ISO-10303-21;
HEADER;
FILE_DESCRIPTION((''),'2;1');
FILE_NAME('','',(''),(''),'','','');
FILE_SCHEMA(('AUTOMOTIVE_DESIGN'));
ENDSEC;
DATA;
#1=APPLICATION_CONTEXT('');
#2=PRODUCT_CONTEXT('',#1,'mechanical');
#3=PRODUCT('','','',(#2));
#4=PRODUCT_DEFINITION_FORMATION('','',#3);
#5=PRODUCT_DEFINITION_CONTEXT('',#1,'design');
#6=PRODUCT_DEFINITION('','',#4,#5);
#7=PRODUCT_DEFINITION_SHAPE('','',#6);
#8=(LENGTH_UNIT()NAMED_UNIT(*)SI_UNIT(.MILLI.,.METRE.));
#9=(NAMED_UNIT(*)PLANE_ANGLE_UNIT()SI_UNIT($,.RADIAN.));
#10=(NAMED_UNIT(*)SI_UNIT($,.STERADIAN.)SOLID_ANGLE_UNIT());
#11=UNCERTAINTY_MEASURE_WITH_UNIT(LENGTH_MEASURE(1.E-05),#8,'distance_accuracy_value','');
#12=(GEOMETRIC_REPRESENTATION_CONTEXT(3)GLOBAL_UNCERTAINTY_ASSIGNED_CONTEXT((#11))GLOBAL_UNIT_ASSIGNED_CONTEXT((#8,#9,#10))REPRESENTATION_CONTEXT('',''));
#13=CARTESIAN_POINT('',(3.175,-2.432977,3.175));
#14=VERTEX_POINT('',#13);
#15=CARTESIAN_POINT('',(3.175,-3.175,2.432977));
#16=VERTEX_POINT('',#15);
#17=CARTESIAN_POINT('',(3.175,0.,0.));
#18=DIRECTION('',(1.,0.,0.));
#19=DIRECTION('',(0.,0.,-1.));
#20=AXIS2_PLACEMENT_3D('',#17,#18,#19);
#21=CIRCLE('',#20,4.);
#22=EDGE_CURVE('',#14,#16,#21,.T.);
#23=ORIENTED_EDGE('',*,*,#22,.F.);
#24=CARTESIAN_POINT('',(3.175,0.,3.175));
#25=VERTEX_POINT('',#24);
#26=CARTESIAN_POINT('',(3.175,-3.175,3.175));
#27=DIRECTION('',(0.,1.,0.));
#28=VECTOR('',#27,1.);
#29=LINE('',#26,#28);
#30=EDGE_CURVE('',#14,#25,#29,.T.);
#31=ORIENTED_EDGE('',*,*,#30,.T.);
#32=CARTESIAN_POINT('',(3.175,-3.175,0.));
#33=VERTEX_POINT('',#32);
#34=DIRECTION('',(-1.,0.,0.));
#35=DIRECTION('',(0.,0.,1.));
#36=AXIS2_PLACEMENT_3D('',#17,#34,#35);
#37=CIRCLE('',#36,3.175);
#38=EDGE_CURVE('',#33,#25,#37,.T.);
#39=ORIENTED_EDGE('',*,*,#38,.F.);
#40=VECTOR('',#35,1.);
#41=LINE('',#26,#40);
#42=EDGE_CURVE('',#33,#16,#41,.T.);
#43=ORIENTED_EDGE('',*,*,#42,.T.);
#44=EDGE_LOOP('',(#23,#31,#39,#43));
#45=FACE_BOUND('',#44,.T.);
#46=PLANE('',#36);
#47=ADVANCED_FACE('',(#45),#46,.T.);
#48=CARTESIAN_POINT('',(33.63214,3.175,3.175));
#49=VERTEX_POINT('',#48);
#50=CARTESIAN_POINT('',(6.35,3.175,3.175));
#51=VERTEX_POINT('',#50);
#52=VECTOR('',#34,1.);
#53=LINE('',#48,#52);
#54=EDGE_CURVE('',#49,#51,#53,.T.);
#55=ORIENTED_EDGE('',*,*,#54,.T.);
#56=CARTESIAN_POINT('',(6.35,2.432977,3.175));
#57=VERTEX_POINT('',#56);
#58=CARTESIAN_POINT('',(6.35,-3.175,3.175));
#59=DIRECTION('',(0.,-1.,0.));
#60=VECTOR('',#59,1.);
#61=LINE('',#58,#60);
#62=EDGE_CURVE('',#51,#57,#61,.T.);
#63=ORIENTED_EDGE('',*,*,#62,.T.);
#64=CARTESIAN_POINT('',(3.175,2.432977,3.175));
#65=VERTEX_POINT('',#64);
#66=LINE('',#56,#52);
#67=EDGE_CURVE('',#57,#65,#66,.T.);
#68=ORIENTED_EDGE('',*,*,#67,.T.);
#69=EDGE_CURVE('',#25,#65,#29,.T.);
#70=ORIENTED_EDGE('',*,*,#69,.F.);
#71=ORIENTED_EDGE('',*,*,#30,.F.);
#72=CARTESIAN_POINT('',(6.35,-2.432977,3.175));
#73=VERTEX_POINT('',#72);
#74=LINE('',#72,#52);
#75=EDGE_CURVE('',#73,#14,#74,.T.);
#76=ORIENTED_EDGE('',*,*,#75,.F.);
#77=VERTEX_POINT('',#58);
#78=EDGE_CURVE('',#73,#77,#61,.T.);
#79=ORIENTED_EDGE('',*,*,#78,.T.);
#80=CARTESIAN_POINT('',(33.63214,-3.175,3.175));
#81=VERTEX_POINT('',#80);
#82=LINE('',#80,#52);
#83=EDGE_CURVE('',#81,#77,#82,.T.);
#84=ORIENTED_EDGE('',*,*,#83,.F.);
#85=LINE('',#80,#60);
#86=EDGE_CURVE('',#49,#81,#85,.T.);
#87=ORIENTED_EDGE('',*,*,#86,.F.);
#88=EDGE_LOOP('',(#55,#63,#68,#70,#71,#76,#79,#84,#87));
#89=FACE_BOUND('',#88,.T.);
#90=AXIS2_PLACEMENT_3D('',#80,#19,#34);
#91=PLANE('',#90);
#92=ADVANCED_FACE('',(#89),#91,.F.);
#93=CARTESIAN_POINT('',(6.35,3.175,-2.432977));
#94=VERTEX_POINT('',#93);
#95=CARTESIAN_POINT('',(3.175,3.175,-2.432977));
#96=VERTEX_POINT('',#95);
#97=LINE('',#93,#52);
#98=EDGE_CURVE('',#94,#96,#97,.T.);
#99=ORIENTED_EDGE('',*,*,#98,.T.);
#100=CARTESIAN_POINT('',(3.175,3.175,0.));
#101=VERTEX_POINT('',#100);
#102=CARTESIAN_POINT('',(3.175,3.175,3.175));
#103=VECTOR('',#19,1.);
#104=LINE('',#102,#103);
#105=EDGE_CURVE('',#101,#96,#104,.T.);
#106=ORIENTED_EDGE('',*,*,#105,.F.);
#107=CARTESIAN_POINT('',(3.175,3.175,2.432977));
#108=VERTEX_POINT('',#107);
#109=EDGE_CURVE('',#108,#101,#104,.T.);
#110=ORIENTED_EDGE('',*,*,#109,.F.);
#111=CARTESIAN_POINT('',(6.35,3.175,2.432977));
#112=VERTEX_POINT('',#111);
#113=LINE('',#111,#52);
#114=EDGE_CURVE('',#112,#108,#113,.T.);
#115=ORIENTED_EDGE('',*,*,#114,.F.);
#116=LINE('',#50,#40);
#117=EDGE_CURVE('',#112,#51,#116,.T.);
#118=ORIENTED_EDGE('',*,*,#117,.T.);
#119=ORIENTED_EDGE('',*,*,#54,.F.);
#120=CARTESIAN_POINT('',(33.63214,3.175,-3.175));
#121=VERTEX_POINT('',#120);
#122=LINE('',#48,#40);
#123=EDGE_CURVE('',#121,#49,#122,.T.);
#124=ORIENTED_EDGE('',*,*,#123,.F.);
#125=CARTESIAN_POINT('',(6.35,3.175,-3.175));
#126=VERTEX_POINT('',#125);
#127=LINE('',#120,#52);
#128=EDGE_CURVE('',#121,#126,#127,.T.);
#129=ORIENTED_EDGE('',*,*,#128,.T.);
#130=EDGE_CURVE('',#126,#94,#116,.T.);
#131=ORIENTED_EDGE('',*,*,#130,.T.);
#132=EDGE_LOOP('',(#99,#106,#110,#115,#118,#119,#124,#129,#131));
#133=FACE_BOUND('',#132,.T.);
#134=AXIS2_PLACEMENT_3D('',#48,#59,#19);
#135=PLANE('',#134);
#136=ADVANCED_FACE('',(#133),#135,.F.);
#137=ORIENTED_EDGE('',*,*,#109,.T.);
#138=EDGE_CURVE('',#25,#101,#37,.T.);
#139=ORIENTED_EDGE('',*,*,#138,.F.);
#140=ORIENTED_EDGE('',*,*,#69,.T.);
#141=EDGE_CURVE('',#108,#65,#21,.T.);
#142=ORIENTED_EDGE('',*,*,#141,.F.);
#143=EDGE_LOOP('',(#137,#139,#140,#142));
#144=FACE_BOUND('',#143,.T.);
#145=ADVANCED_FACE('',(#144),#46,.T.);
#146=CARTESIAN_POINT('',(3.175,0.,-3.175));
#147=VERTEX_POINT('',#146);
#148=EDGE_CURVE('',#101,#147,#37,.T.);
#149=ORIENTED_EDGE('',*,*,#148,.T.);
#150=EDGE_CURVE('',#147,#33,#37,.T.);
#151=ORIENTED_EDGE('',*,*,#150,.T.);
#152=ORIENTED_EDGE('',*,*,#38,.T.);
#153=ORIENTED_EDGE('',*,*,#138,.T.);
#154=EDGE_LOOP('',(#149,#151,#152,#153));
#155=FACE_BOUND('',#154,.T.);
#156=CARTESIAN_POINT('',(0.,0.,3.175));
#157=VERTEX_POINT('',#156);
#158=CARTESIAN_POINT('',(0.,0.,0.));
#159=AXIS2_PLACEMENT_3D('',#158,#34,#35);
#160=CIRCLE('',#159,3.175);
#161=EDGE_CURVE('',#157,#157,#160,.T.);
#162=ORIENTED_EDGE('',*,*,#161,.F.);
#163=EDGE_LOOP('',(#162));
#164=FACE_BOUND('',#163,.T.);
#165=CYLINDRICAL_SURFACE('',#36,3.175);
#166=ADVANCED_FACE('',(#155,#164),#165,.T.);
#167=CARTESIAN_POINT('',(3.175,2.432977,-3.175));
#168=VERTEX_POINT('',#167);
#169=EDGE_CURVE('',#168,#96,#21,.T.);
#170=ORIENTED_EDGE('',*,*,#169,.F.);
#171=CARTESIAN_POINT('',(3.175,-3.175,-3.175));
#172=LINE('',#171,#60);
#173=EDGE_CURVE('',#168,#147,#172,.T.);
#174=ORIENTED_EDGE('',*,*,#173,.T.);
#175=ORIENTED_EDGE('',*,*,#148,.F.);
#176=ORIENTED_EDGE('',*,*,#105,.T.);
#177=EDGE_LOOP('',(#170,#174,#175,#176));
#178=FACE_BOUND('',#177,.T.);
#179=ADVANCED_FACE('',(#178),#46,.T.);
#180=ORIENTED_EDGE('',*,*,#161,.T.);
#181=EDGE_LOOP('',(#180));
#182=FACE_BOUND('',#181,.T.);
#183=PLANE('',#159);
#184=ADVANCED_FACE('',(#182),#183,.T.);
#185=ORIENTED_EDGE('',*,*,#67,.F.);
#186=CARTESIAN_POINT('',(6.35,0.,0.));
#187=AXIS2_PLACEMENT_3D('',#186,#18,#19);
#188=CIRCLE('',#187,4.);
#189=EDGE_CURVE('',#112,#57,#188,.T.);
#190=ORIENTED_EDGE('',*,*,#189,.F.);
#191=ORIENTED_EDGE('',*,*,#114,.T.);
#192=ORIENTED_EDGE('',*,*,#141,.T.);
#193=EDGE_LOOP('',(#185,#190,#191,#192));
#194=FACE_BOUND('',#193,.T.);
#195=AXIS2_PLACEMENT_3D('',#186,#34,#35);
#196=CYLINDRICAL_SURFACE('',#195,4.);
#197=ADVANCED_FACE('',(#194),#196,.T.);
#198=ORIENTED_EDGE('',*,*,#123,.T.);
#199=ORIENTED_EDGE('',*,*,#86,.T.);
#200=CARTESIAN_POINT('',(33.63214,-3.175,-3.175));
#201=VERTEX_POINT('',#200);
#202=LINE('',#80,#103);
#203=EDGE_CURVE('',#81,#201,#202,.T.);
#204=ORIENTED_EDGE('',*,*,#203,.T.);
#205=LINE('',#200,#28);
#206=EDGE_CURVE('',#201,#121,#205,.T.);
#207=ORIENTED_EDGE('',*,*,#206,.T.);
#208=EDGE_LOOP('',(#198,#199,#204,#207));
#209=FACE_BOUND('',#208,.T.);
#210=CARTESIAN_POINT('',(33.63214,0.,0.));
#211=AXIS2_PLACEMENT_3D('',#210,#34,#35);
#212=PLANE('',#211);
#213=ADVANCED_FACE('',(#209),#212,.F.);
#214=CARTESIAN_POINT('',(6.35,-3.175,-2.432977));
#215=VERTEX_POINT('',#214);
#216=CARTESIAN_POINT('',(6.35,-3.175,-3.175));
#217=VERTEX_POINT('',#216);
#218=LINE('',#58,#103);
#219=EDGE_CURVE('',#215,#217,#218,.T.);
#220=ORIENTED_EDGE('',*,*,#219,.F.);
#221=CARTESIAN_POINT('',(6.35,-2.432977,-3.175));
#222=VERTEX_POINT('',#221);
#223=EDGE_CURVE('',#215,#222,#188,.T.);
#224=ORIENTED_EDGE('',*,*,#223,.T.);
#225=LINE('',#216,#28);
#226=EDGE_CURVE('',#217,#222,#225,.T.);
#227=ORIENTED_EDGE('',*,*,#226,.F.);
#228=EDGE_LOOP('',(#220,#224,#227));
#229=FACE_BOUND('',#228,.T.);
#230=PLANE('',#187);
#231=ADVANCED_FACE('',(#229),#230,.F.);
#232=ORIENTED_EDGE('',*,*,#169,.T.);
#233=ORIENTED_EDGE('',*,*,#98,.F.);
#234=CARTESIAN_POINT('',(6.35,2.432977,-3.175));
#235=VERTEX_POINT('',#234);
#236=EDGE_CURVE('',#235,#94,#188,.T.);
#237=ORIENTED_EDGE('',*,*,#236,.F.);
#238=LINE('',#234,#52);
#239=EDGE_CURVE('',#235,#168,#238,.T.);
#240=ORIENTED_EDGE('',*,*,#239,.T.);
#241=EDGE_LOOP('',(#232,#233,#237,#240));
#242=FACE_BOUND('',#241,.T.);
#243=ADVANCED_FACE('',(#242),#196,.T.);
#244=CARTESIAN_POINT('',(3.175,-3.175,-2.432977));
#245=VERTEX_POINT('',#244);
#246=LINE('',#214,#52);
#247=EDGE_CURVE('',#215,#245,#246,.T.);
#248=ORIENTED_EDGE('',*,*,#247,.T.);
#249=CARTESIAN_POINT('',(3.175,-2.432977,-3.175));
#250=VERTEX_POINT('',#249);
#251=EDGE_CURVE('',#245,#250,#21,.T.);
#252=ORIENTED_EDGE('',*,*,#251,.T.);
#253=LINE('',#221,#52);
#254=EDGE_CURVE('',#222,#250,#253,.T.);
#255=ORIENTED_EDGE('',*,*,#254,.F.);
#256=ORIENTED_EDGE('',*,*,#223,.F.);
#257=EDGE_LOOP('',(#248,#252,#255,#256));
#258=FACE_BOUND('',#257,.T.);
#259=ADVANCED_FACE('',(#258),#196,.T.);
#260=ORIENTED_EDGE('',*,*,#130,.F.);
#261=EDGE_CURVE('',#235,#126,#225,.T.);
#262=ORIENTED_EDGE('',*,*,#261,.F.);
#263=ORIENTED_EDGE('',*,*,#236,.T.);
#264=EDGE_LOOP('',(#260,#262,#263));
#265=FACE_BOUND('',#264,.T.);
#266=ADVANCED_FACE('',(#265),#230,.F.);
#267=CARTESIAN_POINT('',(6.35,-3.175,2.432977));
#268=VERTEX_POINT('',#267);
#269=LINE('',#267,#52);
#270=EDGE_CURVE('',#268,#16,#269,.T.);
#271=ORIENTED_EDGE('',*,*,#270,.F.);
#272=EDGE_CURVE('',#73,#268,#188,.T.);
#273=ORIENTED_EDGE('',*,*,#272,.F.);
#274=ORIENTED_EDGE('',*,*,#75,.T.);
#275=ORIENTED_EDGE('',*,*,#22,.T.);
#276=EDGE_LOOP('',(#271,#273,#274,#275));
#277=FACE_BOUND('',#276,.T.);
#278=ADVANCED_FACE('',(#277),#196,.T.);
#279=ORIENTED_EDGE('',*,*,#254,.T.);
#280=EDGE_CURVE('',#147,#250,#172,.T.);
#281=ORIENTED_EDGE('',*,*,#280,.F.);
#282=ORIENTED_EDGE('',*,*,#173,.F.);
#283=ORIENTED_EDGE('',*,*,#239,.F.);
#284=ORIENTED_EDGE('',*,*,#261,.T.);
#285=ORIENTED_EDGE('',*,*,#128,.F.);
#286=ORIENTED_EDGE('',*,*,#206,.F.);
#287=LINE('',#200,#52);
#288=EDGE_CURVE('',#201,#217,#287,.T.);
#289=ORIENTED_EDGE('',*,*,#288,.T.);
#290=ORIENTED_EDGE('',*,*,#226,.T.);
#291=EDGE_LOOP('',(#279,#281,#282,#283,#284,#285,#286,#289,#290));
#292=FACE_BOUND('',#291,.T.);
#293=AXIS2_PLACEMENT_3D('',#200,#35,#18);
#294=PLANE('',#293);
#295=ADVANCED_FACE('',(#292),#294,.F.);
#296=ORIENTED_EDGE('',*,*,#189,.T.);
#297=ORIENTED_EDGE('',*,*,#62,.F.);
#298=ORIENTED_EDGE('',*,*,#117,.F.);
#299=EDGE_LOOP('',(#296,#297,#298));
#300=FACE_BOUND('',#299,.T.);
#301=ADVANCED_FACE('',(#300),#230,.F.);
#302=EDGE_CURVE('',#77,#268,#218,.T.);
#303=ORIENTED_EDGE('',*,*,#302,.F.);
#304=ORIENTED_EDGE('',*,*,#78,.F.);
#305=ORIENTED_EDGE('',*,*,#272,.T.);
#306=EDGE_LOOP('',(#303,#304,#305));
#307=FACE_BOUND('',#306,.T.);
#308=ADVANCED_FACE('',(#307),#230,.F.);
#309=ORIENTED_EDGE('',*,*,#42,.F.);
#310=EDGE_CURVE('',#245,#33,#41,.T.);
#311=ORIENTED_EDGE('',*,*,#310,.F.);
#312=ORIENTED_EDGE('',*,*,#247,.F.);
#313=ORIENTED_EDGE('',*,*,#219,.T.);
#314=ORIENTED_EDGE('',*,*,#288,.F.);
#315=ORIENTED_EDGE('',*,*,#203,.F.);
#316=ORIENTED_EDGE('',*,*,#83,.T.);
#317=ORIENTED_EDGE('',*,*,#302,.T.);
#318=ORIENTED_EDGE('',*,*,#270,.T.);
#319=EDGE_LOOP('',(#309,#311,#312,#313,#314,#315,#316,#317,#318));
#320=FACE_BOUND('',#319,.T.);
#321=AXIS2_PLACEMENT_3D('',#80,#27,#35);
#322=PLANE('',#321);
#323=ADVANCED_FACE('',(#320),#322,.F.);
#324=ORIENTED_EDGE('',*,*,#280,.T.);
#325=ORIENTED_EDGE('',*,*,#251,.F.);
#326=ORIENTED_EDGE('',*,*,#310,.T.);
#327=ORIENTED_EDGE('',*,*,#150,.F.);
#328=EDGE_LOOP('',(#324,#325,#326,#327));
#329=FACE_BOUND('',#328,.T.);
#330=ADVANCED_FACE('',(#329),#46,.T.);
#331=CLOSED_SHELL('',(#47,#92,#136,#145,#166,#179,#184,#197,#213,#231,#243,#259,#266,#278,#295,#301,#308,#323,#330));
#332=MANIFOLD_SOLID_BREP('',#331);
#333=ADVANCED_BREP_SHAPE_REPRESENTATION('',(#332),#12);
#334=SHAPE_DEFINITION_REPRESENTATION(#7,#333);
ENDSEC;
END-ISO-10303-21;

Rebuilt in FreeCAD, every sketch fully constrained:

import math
import FreeCAD as App
import Part
import Sketcher
from FreeCAD import Vector
Q = App.Units.Quantity

doc = App.newDocument("Part")
body = doc.addObject("PartDesign::Body", "Body")

# Sketch on YZ plane
sketch1 = doc.addObject("Sketcher::SketchObject", "Sketch")
body.addObject(sketch1)
sketch1.AttachmentSupport = (doc.YZ_Plane, [""])
sketch1.MapMode = "FlatFace"
sketch1.addGeometry(Part.LineSegment(Vector(3, 3, 0), Vector(-3, 3, 0)), False)
sketch1.addGeometry(Part.LineSegment(Vector(-3, 3, 0), Vector(-3, -3, 0)), False)
sketch1.addGeometry(Part.LineSegment(Vector(-3, -3, 0), Vector(3, -3, 0)), False)
sketch1.addGeometry(Part.LineSegment(Vector(3, -3, 0), Vector(3, 3, 0)), False)
sketch1.addConstraint(Sketcher.Constraint("Coincident", 0, 2, 1, 1))
sketch1.addConstraint(Sketcher.Constraint("Coincident", 1, 2, 2, 1))
sketch1.addConstraint(Sketcher.Constraint("Coincident", 2, 2, 3, 1))
sketch1.addConstraint(Sketcher.Constraint("Coincident", 3, 2, 0, 1))
sketch1.addConstraint(Sketcher.Constraint("Horizontal", 0))
sketch1.addConstraint(Sketcher.Constraint("Vertical", 1))
sketch1.addConstraint(Sketcher.Constraint("Horizontal", 2))
sketch1.addConstraint(Sketcher.Constraint("Vertical", 3))
sketch1.addConstraint(Sketcher.Constraint("Symmetric", 0, 2, 2, 2, -1, 1))
sketch1.addConstraint(Sketcher.Constraint("Equal", 2, 1))
sketch1.addConstraint(Sketcher.Constraint("DistanceX", 0, 2, 0, 1, Q("0.25 in")))
pad1 = doc.addObject("PartDesign::Pad", "Pad")
body.addObject(pad1)
pad1.Profile = sketch1
pad1.Length = Q("1.3241 in")

# Sketch on YZ plane
sketch2 = doc.addObject("Sketcher::SketchObject", "Sketch001")
body.addObject(sketch2)
sketch2.AttachmentSupport = (doc.YZ_Plane, [""])
sketch2.MapMode = "FlatFace"
sketch2.addGeometry(Part.LineSegment(Vector(4.8, -4.8, 0), Vector(-4.8, -4.8, 0)), False)
sketch2.addGeometry(Part.LineSegment(Vector(-4.8, -4.8, 0), Vector(-4.8, 4.8, 0)), False)
sketch2.addGeometry(Part.LineSegment(Vector(-4.8, 4.8, 0), Vector(4.8, 4.8, 0)), False)
sketch2.addGeometry(Part.LineSegment(Vector(4.8, 4.8, 0), Vector(4.8, -4.8, 0)), False)
sketch2.addGeometry(Part.Circle(Vector(0, 0, 0), Vector(0, 0, 1), 3.2), False)
sketch2.addConstraint(Sketcher.Constraint("Coincident", 0, 2, 1, 1))
sketch2.addConstraint(Sketcher.Constraint("Coincident", 1, 2, 2, 1))
sketch2.addConstraint(Sketcher.Constraint("Coincident", 2, 2, 3, 1))
sketch2.addConstraint(Sketcher.Constraint("Coincident", 3, 2, 0, 1))
sketch2.addConstraint(Sketcher.Constraint("Horizontal", 0))
sketch2.addConstraint(Sketcher.Constraint("Vertical", 1))
sketch2.addConstraint(Sketcher.Constraint("Horizontal", 2))
sketch2.addConstraint(Sketcher.Constraint("Vertical", 3))
sketch2.addConstraint(Sketcher.Constraint("Coincident", 4, 3, -1, 1))
sketch2.addConstraint(Sketcher.Constraint("Symmetric", 0, 2, 2, 2, -1, 1))
sketch2.addConstraint(Sketcher.Constraint("Equal", 2, 1))
sketch2.addConstraint(Sketcher.Constraint("Diameter", 4, Q("0.25 in")))
sketch2.addConstraint(Sketcher.Constraint("DistanceX", 0, 2, 0, 1, Q("0.375 in")))
pocket1 = doc.addObject("PartDesign::Pocket", "Pocket")
body.addObject(pocket1)
pocket1.Profile = sketch2
pocket1.Length = Q("0.125 in")
pocket1.Reversed = True

# Sketch on YZ plane
sketch3 = doc.addObject("Sketcher::SketchObject", "Sketch002")
body.addObject(sketch3)
sketch3.AttachmentSupport = (doc.YZ_Plane, [""])
sketch3.MapMode = "FlatFace"
sketch3.AttachmentOffset = App.Placement(Vector(0, 0, 0.125 * 25.4), App.Rotation())
sketch3.addGeometry(Part.LineSegment(Vector(4, 4, 0), Vector(-4, 4, 0)), False)
sketch3.addGeometry(Part.LineSegment(Vector(-4, 4, 0), Vector(-4, -4, 0)), False)
sketch3.addGeometry(Part.LineSegment(Vector(-4, -4, 0), Vector(4, -4, 0)), False)
sketch3.addGeometry(Part.LineSegment(Vector(4, -4, 0), Vector(4, 4, 0)), False)
sketch3.addGeometry(Part.LineSegment(Vector(2.4, -3.2, 0), Vector(-2.4, -3.2, 0)), False)
sketch3.addGeometry(Part.ArcOfCircle(Part.Circle(Vector(0, 0, 0), Vector(0, 0, 1), 4), math.radians(-142.54), math.radians(-127.46)), False)
sketch3.addGeometry(Part.LineSegment(Vector(-3.2, -2.4, 0), Vector(-3.2, 2.4, 0)), False)
sketch3.addGeometry(Part.ArcOfCircle(Part.Circle(Vector(0, 0, 0), Vector(0, 0, 1), 4), math.radians(127.46), math.radians(142.54)), False)
sketch3.addGeometry(Part.LineSegment(Vector(-2.4, 3.2, 0), Vector(2.4, 3.2, 0)), False)
sketch3.addGeometry(Part.ArcOfCircle(Part.Circle(Vector(0, 0, 0), Vector(0, 0, 1), 4), math.radians(37.46), math.radians(52.54)), False)
sketch3.addGeometry(Part.LineSegment(Vector(3.2, 2.4, 0), Vector(3.2, -2.4, 0)), False)
sketch3.addGeometry(Part.ArcOfCircle(Part.Circle(Vector(0, 0, 0), Vector(0, 0, 1), 4), math.radians(-52.54), math.radians(-37.46)), False)
sketch3.addConstraint(Sketcher.Constraint("Coincident", 0, 2, 1, 1))
sketch3.addConstraint(Sketcher.Constraint("Coincident", 1, 2, 2, 1))
sketch3.addConstraint(Sketcher.Constraint("Coincident", 2, 2, 3, 1))
sketch3.addConstraint(Sketcher.Constraint("Coincident", 3, 2, 0, 1))
sketch3.addConstraint(Sketcher.Constraint("Coincident", 4, 2, 5, 2))
sketch3.addConstraint(Sketcher.Constraint("Coincident", 5, 1, 6, 1))
sketch3.addConstraint(Sketcher.Constraint("Coincident", 6, 2, 7, 2))
sketch3.addConstraint(Sketcher.Constraint("Coincident", 7, 1, 8, 1))
sketch3.addConstraint(Sketcher.Constraint("Coincident", 8, 2, 9, 2))
sketch3.addConstraint(Sketcher.Constraint("Coincident", 9, 1, 10, 1))
sketch3.addConstraint(Sketcher.Constraint("Coincident", 10, 2, 11, 2))
sketch3.addConstraint(Sketcher.Constraint("Coincident", 11, 1, 4, 1))
sketch3.addConstraint(Sketcher.Constraint("Horizontal", 0))
sketch3.addConstraint(Sketcher.Constraint("Vertical", 1))
sketch3.addConstraint(Sketcher.Constraint("Horizontal", 2))
sketch3.addConstraint(Sketcher.Constraint("Vertical", 3))
sketch3.addConstraint(Sketcher.Constraint("Horizontal", 4))
sketch3.addConstraint(Sketcher.Constraint("Vertical", 6))
sketch3.addConstraint(Sketcher.Constraint("Horizontal", 8))
sketch3.addConstraint(Sketcher.Constraint("Vertical", 10))
sketch3.addConstraint(Sketcher.Constraint("Coincident", 5, 3, -1, 1))
sketch3.addConstraint(Sketcher.Constraint("Coincident", 7, 3, -1, 1))
sketch3.addConstraint(Sketcher.Constraint("Coincident", 9, 3, -1, 1))
sketch3.addConstraint(Sketcher.Constraint("Coincident", 11, 3, -1, 1))
sketch3.addConstraint(Sketcher.Constraint("Equal", 5, 7))
sketch3.addConstraint(Sketcher.Constraint("Equal", 7, 9))
sketch3.addConstraint(Sketcher.Constraint("Equal", 9, 11))
sketch3.addConstraint(Sketcher.Constraint("Symmetric", 0, 2, 2, 2, -1, 1))
sketch3.addConstraint(Sketcher.Constraint("Horizontal", 6, 2, 9, 1))
sketch3.addConstraint(Sketcher.Constraint("Vertical", 4, 2, 7, 1))
sketch3.addConstraint(Sketcher.Constraint("Equal", 2, 1))
sketch3.addConstraint(Sketcher.Constraint("Equal", 8, 6))
sketch3.addConstraint(Sketcher.Constraint("DistanceX", 0, 2, 0, 1, Q("0.3125 in")))
sketch3.addConstraint(Sketcher.Constraint("Radius", 5, 4.0))
sketch3.addConstraint(Sketcher.Constraint("DistanceY", 4, 2, -1, 1, Q("0.125 in")))
pocket2 = doc.addObject("PartDesign::Pocket", "Pocket001")
body.addObject(pocket2)
pocket2.Profile = sketch3
pocket2.Length = Q("0.125 in")
pocket2.Reversed = True

doc.recompute()
